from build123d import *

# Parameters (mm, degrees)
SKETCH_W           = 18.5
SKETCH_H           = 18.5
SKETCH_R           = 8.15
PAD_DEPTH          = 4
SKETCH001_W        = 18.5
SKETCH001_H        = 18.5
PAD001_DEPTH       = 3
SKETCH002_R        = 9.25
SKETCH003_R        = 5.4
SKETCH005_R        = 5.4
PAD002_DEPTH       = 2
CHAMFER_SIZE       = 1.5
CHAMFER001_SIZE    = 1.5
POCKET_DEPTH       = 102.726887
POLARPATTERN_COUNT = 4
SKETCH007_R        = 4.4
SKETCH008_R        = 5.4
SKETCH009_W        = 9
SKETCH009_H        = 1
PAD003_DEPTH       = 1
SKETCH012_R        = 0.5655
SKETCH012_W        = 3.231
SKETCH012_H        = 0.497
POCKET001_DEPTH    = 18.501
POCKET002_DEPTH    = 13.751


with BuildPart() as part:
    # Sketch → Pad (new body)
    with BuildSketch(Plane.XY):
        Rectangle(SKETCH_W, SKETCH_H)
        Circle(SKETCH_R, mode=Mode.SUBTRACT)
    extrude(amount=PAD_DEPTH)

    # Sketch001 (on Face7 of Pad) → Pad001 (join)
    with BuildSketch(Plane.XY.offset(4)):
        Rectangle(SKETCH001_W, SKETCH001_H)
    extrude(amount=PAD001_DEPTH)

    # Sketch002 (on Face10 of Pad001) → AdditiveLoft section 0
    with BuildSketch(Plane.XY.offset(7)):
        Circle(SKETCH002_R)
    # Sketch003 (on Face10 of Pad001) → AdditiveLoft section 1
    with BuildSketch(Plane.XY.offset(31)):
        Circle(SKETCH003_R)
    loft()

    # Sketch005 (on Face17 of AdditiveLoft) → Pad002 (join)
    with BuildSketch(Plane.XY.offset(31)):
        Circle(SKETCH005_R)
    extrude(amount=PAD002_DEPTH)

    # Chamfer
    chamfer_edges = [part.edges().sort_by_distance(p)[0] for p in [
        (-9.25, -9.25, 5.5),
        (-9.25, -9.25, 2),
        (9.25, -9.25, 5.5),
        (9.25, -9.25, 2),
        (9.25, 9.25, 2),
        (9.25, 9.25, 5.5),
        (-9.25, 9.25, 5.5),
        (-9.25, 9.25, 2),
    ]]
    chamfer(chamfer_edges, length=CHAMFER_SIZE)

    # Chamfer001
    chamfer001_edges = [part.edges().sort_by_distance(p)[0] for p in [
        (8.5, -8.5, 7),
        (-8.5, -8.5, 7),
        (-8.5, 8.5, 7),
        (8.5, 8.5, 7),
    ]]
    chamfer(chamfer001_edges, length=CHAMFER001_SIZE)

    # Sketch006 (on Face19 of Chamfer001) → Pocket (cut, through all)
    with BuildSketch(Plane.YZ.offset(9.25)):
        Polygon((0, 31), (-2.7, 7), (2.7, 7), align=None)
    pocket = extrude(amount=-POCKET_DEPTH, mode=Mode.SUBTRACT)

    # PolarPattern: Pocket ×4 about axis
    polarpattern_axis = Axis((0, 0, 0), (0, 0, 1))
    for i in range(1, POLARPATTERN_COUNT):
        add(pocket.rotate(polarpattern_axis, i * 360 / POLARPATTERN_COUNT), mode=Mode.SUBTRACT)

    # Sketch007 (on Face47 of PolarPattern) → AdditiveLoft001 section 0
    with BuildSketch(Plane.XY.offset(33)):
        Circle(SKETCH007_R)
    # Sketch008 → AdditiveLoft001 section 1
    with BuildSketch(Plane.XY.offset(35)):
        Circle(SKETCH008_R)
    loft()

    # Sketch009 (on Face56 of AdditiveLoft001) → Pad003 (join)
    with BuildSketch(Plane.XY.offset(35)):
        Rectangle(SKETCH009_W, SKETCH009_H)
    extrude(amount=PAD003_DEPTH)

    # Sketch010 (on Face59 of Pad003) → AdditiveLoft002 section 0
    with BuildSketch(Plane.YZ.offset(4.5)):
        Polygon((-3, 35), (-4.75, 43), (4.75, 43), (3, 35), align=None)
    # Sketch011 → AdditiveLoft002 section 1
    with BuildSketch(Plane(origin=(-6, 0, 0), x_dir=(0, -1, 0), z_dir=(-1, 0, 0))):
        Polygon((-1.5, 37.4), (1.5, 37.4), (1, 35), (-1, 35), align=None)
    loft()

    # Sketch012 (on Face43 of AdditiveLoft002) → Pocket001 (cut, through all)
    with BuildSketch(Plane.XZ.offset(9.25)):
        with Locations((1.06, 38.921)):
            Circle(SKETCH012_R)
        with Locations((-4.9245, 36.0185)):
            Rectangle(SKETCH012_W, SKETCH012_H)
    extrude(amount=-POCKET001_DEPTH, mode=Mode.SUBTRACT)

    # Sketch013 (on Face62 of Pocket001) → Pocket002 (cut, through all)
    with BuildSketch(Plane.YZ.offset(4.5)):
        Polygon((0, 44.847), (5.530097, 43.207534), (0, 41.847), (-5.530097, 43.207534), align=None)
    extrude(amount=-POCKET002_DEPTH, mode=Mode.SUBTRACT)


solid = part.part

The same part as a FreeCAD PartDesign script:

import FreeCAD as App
import Part
import Sketcher

V = App.Vector


def edges_at(feature, points):
    """Names of the edges that pass closest to the given points."""
    edges = feature.Shape.Edges
    near = lambda p: min(range(len(edges)), key=lambda i: edges[i].distToShape(Part.Vertex(*p))[0])
    return sorted({f"Edge{near(p) + 1}" for p in points})

doc = App.newDocument("Part")
body = doc.addObject("PartDesign::Body", "Body")

# Sketch on XY plane
sketch1 = body.newObject("Sketcher::SketchObject", "Sketch")
sketch1.AttachmentSupport = (doc.getObject("XY_Plane"), [""])
sketch1.MapMode = "FlatFace"
sketch1.addGeometry([
    Part.LineSegment(V(-9, 9, 0), V(-9, -9, 0)),  # 0
    Part.LineSegment(V(-9, -9, 0), V(9, -9, 0)),  # 1
    Part.LineSegment(V(9, -9, 0), V(9, 9, 0)),  # 2
    Part.LineSegment(V(9, 9, 0), V(-9, 9, 0)),  # 3
    Part.Circle(V(0, 0, 0), V(0, 0, 1), 8),  # 4
], False)
sketch1.addConstraint([
    Sketcher.Constraint("Coincident", 0, 2, 1, 1),
    Sketcher.Constraint("Coincident", 1, 2, 2, 1),
    Sketcher.Constraint("Coincident", 2, 2, 3, 1),
    Sketcher.Constraint("Coincident", 3, 2, 0, 1),
    Sketcher.Constraint("Vertical", 0),
    Sketcher.Constraint("Horizontal", 1),
    Sketcher.Constraint("Vertical", 2),
    Sketcher.Constraint("Horizontal", 3),
    Sketcher.Constraint("Coincident", 4, 3, -1, 1),
    Sketcher.Constraint("Symmetric", 0, 2, 2, 2, -1, 1),
    Sketcher.Constraint("Equal", 3, 0),
    Sketcher.Constraint("Diameter", 4, 16.3),
    Sketcher.Constraint("DistanceX", 1, 1, 1, 2, 18.5),
])
pad1 = body.newObject("PartDesign::Pad", "Pad")
pad1.Profile = sketch1
pad1.Length = 4

# Sketch on XY plane
sketch2 = body.newObject("Sketcher::SketchObject", "Sketch001")
sketch2.AttachmentSupport = (doc.getObject("XY_Plane"), [""])
sketch2.MapMode = "FlatFace"
sketch2.AttachmentOffset = App.Placement(V(0, 0, 4), App.Rotation())
sketch2.addGeometry([
    Part.LineSegment(V(-9, 9, 0), V(-9, -9, 0)),
    Part.LineSegment(V(-9, -9, 0), V(9, -9, 0)),
    Part.LineSegment(V(9, -9, 0), V(9, 9, 0)),
    Part.LineSegment(V(9, 9, 0), V(-9, 9, 0)),
], False)
sketch2.addConstraint([
    Sketcher.Constraint("Coincident", 0, 2, 1, 1),
    Sketcher.Constraint("Coincident", 1, 2, 2, 1),
    Sketcher.Constraint("Coincident", 2, 2, 3, 1),
    Sketcher.Constraint("Coincident", 3, 2, 0, 1),
    Sketcher.Constraint("Vertical", 0),
    Sketcher.Constraint("Horizontal", 1),
    Sketcher.Constraint("Vertical", 2),
    Sketcher.Constraint("Horizontal", 3),
    Sketcher.Constraint("Symmetric", 0, 2, 2, 2, -1, 1),
    Sketcher.Constraint("Equal", 3, 0),
    Sketcher.Constraint("DistanceX", 1, 1, 1, 2, 18.5),
])
pad2 = body.newObject("PartDesign::Pad", "Pad001")
pad2.Profile = sketch2
pad2.Length = 3

# Sketch on XY plane
sketch3 = body.newObject("Sketcher::SketchObject", "Sketch002")
sketch3.AttachmentSupport = (doc.getObject("XY_Plane"), [""])
sketch3.MapMode = "FlatFace"
sketch3.AttachmentOffset = App.Placement(V(0, 0, 7), App.Rotation())
sketch3.addGeometry(Part.Circle(V(0, 0, 0), V(0, 0, 1), 9), False)
sketch3.addConstraint([
    Sketcher.Constraint("Coincident", 0, 3, -1, 1),
    Sketcher.Constraint("Diameter", 0, 18.5),
])

# Sketch on XY plane
sketch4 = body.newObject("Sketcher::SketchObject", "Sketch003")
sketch4.AttachmentSupport = (doc.getObject("XY_Plane"), [""])
sketch4.MapMode = "FlatFace"
sketch4.AttachmentOffset = App.Placement(V(0, 0, 31), App.Rotation())
sketch4.addGeometry(Part.Circle(V(0, 0, 0), V(0, 0, 1), 5), False)
sketch4.addConstraint([
    Sketcher.Constraint("Coincident", 0, 3, -1, 1),
    Sketcher.Constraint("Diameter", 0, 10.8),
])

additiveloft = body.newObject("PartDesign::AdditiveLoft", "AdditiveLoft")
additiveloft.Profile = sketch3
additiveloft.Sections = [sketch4]

# Sketch on XY plane
sketch5 = body.newObject("Sketcher::SketchObject", "Sketch004")
sketch5.AttachmentSupport = (doc.getObject("XY_Plane"), [""])
sketch5.MapMode = "FlatFace"
sketch5.AttachmentOffset = App.Placement(V(0, 0, 31), App.Rotation())
sketch5.addGeometry(Part.Circle(V(0, 0, 0), V(0, 0, 1), 5), False)
sketch5.addConstraint([
    Sketcher.Constraint("Coincident", 0, 3, -1, 1),
    Sketcher.Constraint("Diameter", 0, 10.8),
])
pad3 = body.newObject("PartDesign::Pad", "Pad002")
pad3.Profile = sketch5
pad3.Length = 2
doc.recompute()

chamfer = body.newObject("PartDesign::Chamfer", "Chamfer")
chamfer.Base = (pad3, edges_at(pad3, [
    (-9.25, -9.25, 3.5),
    (-9.25, -9.25, 3.5),
    (9.25, -9.25, 3.5),
    (9.25, -9.25, 3.5),
    (9.25, 9.25, 3.5),
    (9.25, 9.25, 3.5),
    (-9.25, 9.25, 3.5),
    (-9.25, 9.25, 3.5),
]))
chamfer.Size = 1.5
doc.recompute()

chamfer2 = body.newObject("PartDesign::Chamfer", "Chamfer001")
chamfer2.Base = (chamfer, edges_at(chamfer, [
    (8.5, -8.5, 7),
    (-8.5, -8.5, 7),
    (-8.5, 8.5, 7),
    (8.5, 8.5, 7),
]))
chamfer2.Size = 1.5

# Sketch on YZ plane
sketch6 = body.newObject("Sketcher::SketchObject", "Sketch005")
sketch6.AttachmentSupport = (doc.getObject("YZ_Plane"), [""])
sketch6.MapMode = "FlatFace"
sketch6.AttachmentOffset = App.Placement(V(0, 0, 9.25), App.Rotation())
sketch6.addGeometry([
    Part.LineSegment(V(0, 31, 0), V(-3, 7, 0)),
    Part.LineSegment(V(-3, 7, 0), V(3, 7, 0)),
    Part.LineSegment(V(3, 7, 0), V(0, 31, 0)),
], False)
sketch6.addConstraint([
    Sketcher.Constraint("Coincident", 0, 2, 1, 1),
    Sketcher.Constraint("Coincident", 1, 2, 2, 1),
    Sketcher.Constraint("Coincident", 2, 2, 0, 1),
    Sketcher.Constraint("Horizontal", 1),
    Sketcher.Constraint("PointOnObject", 2, 2, -2),
    Sketcher.Constraint("Equal", 0, 2),
    Sketcher.Constraint("DistanceX", 1, 1, 1, 2, 5.4),
    Sketcher.Constraint("DistanceY", -1, 1, 0, 2, 7.0),
    Sketcher.Constraint("DistanceY", -1, 1, 2, 2, 31.0),
])
pocket1 = body.newObject("PartDesign::Pocket", "Pocket")
pocket1.Profile = sketch6
pocket1.Type = "ThroughAll"
doc.recompute()

polarpattern = body.newObject("PartDesign::PolarPattern", "PolarPattern")
polarpattern.Originals = [pocket1]
polarpattern.Axis = (doc.getObject("Z_Axis"), [""])
polarpattern.Angle = 360
polarpattern.Occurrences = 4
body.Tip = polarpattern

# Sketch on XY plane
sketch7 = body.newObject("Sketcher::SketchObject", "Sketch006")
sketch7.AttachmentSupport = (doc.getObject("XY_Plane"), [""])
sketch7.MapMode = "FlatFace"
sketch7.AttachmentOffset = App.Placement(V(0, 0, 33), App.Rotation())
sketch7.addGeometry(Part.Circle(V(0, 0, 0), V(0, 0, 1), 4.4), False)
sketch7.addConstraint([
    Sketcher.Constraint("Coincident", 0, 3, -1, 1),
    Sketcher.Constraint("Diameter", 0, 8.8),
])

# Sketch on XY plane
sketch8 = body.newObject("Sketcher::SketchObject", "Sketch007")
sketch8.AttachmentSupport = (doc.getObject("XY_Plane"), [""])
sketch8.MapMode = "FlatFace"
sketch8.AttachmentOffset = App.Placement(V(0, 0, 35), App.Rotation())
sketch8.addGeometry(Part.Circle(V(0, 0, 0), V(0, 0, 1), 5), False)
sketch8.addConstraint([
    Sketcher.Constraint("Coincident", 0, 3, -1, 1),
    Sketcher.Constraint("Diameter", 0, 10.8),
])

additiveloft2 = body.newObject("PartDesign::AdditiveLoft", "AdditiveLoft001")
additiveloft2.Profile = sketch7
additiveloft2.Sections = [sketch8]

# Sketch on XY plane
sketch9 = body.newObject("Sketcher::SketchObject", "Sketch008")
sketch9.AttachmentSupport = (doc.getObject("XY_Plane"), [""])
sketch9.MapMode = "FlatFace"
sketch9.AttachmentOffset = App.Placement(V(0, 0, 35), App.Rotation())
sketch9.addGeometry([
    Part.LineSegment(V(-4.5, 0.5, 0), V(-4.5, -0.5, 0)),
    Part.LineSegment(V(-4.5, -0.5, 0), V(4.5, -0.5, 0)),
    Part.LineSegment(V(4.5, -0.5, 0), V(4.5, 0.5, 0)),
    Part.LineSegment(V(4.5, 0.5, 0), V(-4.5, 0.5, 0)),
], False)
sketch9.addConstraint([
    Sketcher.Constraint("Coincident", 0, 2, 1, 1),
    Sketcher.Constraint("Coincident", 1, 2, 2, 1),
    Sketcher.Constraint("Coincident", 2, 2, 3, 1),
    Sketcher.Constraint("Coincident", 3, 2, 0, 1),
    Sketcher.Constraint("Vertical", 0),
    Sketcher.Constraint("Horizontal", 1),
    Sketcher.Constraint("Vertical", 2),
    Sketcher.Constraint("Horizontal", 3),
    Sketcher.Constraint("Symmetric", 0, 2, 2, 2, -1, 1),
    Sketcher.Constraint("DistanceX", 1, 1, 1, 2, 9.0),
    Sketcher.Constraint("DistanceY", 0, 2, 0, 1, 1.0),
])
pad4 = body.newObject("PartDesign::Pad", "Pad003")
pad4.Profile = sketch9
pad4.Length = 1

# Sketch on YZ plane
sketch10 = body.newObject("Sketcher::SketchObject", "Sketch009")
sketch10.AttachmentSupport = (doc.getObject("YZ_Plane"), [""])
sketch10.MapMode = "FlatFace"
sketch10.AttachmentOffset = App.Placement(V(0, 0, 4.5), App.Rotation())
sketch10.addGeometry([
    Part.LineSegment(V(-5, 43, 0), V(-3, 35, 0)),
    Part.LineSegment(V(-3, 35, 0), V(3, 35, 0)),
    Part.LineSegment(V(3, 35, 0), V(5, 43, 0)),
    Part.LineSegment(V(5, 43, 0), V(-5, 43, 0)),
], False)
sketch10.addConstraint([
    Sketcher.Constraint("Coincident", 0, 2, 1, 1),
    Sketcher.Constraint("Coincident", 1, 2, 2, 1),
    Sketcher.Constraint("Coincident", 2, 2, 3, 1),
    Sketcher.Constraint("Coincident", 3, 2, 0, 1),
    Sketcher.Constraint("Horizontal", 1),
    Sketcher.Constraint("Horizontal", 3),
    Sketcher.Constraint("Equal", 0, 2),
    Sketcher.Constraint("DistanceX", 1, 1, 1, 2, 6.0),
    Sketcher.Constraint("DistanceX", 3, 2, 3, 1, 9.5),
    Sketcher.Constraint("DistanceX", 0, 2, -1, 1, 3.0),
    Sketcher.Constraint("DistanceY", -1, 1, 0, 2, 35.0),
    Sketcher.Constraint("DistanceY", -1, 1, 2, 2, 43.0),
])

# Sketch on YZ plane
sketch11 = body.newObject("Sketcher::SketchObject", "Sketch010")
sketch11.AttachmentSupport = (doc.getObject("YZ_Plane"), [""])
sketch11.MapMode = "FlatFace"
sketch11.AttachmentOffset = App.Placement(V(0, 0, -6), App.Rotation())
sketch11.addGeometry([
    Part.LineSegment(V(-1.5, 37.4, 0), V(1.5, 37.4, 0)),
    Part.LineSegment(V(1.5, 37.4, 0), V(1, 35, 0)),
    Part.LineSegment(V(1, 35, 0), V(-1, 35, 0)),
    Part.LineSegment(V(-1, 35, 0), V(-1.5, 37.4, 0)),
], False)
sketch11.addConstraint([
    Sketcher.Constraint("Coincident", 0, 2, 1, 1),
    Sketcher.Constraint("Coincident", 1, 2, 2, 1),
    Sketcher.Constraint("Coincident", 2, 2, 3, 1),
    Sketcher.Constraint("Coincident", 3, 2, 0, 1),
    Sketcher.Constraint("Horizontal", 0),
    Sketcher.Constraint("Horizontal", 2),
    Sketcher.Constraint("Equal", 1, 3),
    Sketcher.Constraint("DistanceX", 0, 1, 0, 2, 3.0),
    Sketcher.Constraint("DistanceX", 2, 2, 2, 1, 2.0),
    Sketcher.Constraint("DistanceX", -1, 1, 1, 2, 1.0),
    Sketcher.Constraint("DistanceY", -1, 1, 1, 2, 35.0),
    Sketcher.Constraint("DistanceY", -1, 1, 0, 2, 37.4),
])

additiveloft3 = body.newObject("PartDesign::AdditiveLoft", "AdditiveLoft002")
additiveloft3.Profile = sketch10
additiveloft3.Sections = [sketch11]

# Sketch on XZ plane
sketch12 = body.newObject("Sketcher::SketchObject", "Sketch011")
sketch12.AttachmentSupport = (doc.getObject("XZ_Plane"), [""])
sketch12.MapMode = "FlatFace"
sketch12.AttachmentOffset = App.Placement(V(0, 0, 9.25), App.Rotation())
sketch12.addGeometry([
    Part.Circle(V(1.06, 38.92, 0), V(0, 0, 1), 0.57),  # 0
    Part.LineSegment(V(-6.54, 36.27, 0), V(-6.54, 35.77, 0)),  # 1
    Part.LineSegment(V(-6.54, 35.77, 0), V(-3.31, 35.77, 0)),  # 2
    Part.LineSegment(V(-3.31, 35.77, 0), V(-3.31, 36.27, 0)),  # 3
    Part.LineSegment(V(-3.31, 36.27, 0), V(-6.54, 36.27, 0)),  # 4
], False)
sketch12.addConstraint([
    Sketcher.Constraint("Coincident", 1, 2, 2, 1),
    Sketcher.Constraint("Coincident", 2, 2, 3, 1),
    Sketcher.Constraint("Coincident", 3, 2, 4, 1),
    Sketcher.Constraint("Coincident", 4, 2, 1, 1),
    Sketcher.Constraint("Vertical", 1),
    Sketcher.Constraint("Horizontal", 2),
    Sketcher.Constraint("Vertical", 3),
    Sketcher.Constraint("Horizontal", 4),
    Sketcher.Constraint("Diameter", 0, 1.131),
    Sketcher.Constraint("DistanceX", 1, 2, 0, 3, 7.6),
    Sketcher.Constraint("DistanceX", 2, 1, 2, 2, 3.231),
    Sketcher.Constraint("DistanceY", 1, 2, 1, 1, 0.497),
    Sketcher.Constraint("DistanceX", -1, 1, 0, 3, 1.06),
    Sketcher.Constraint("DistanceY", -1, 1, 1, 2, 35.77),
    Sketcher.Constraint("DistanceY", -1, 1, 0, 3, 38.921),
])
pocket2 = body.newObject("PartDesign::Pocket", "Pocket001")
pocket2.Profile = sketch12
pocket2.Type = "ThroughAll"

# Sketch on YZ plane
sketch13 = body.newObject("Sketcher::SketchObject", "Sketch012")
sketch13.AttachmentSupport = (doc.getObject("YZ_Plane"), [""])
sketch13.MapMode = "FlatFace"
sketch13.AttachmentOffset = App.Placement(V(0, 0, 4.5), App.Rotation())
sketch13.addGeometry([
    Part.LineSegment(V(6, 43, 0), V(0, 45, 0)),
    Part.LineSegment(V(0, 45, 0), V(-6, 43, 0)),
    Part.LineSegment(V(-6, 43, 0), V(0, 42, 0)),
    Part.LineSegment(V(0, 42, 0), V(6, 43, 0)),
], False)
sketch13.addConstraint([
    Sketcher.Constraint("Coincident", 0, 2, 1, 1),
    Sketcher.Constraint("Coincident", 1, 2, 2, 1),
    Sketcher.Constraint("Coincident", 2, 2, 3, 1),
    Sketcher.Constraint("Coincident", 3, 2, 0, 1),
    Sketcher.Constraint("Symmetric", 1, 2, 3, 2, -2),
    Sketcher.Constraint("PointOnObject", 0, 2, -2),
    Sketcher.Constraint("PointOnObject", 2, 2, -2),
    Sketcher.Constraint("DistanceY", 2, 2, 0, 2, 3.0),
    Sketcher.Constraint("Distance", 0, 5.768),
    Sketcher.Constraint("Distance", 2, 5.695),
    Sketcher.Constraint("DistanceY", -1, 1, 0, 2, 44.847),
])
pocket3 = body.newObject("PartDesign::Pocket", "Pocket002")
pocket3.Profile = sketch13
pocket3.Type = "ThroughAll"

doc.recompute()
